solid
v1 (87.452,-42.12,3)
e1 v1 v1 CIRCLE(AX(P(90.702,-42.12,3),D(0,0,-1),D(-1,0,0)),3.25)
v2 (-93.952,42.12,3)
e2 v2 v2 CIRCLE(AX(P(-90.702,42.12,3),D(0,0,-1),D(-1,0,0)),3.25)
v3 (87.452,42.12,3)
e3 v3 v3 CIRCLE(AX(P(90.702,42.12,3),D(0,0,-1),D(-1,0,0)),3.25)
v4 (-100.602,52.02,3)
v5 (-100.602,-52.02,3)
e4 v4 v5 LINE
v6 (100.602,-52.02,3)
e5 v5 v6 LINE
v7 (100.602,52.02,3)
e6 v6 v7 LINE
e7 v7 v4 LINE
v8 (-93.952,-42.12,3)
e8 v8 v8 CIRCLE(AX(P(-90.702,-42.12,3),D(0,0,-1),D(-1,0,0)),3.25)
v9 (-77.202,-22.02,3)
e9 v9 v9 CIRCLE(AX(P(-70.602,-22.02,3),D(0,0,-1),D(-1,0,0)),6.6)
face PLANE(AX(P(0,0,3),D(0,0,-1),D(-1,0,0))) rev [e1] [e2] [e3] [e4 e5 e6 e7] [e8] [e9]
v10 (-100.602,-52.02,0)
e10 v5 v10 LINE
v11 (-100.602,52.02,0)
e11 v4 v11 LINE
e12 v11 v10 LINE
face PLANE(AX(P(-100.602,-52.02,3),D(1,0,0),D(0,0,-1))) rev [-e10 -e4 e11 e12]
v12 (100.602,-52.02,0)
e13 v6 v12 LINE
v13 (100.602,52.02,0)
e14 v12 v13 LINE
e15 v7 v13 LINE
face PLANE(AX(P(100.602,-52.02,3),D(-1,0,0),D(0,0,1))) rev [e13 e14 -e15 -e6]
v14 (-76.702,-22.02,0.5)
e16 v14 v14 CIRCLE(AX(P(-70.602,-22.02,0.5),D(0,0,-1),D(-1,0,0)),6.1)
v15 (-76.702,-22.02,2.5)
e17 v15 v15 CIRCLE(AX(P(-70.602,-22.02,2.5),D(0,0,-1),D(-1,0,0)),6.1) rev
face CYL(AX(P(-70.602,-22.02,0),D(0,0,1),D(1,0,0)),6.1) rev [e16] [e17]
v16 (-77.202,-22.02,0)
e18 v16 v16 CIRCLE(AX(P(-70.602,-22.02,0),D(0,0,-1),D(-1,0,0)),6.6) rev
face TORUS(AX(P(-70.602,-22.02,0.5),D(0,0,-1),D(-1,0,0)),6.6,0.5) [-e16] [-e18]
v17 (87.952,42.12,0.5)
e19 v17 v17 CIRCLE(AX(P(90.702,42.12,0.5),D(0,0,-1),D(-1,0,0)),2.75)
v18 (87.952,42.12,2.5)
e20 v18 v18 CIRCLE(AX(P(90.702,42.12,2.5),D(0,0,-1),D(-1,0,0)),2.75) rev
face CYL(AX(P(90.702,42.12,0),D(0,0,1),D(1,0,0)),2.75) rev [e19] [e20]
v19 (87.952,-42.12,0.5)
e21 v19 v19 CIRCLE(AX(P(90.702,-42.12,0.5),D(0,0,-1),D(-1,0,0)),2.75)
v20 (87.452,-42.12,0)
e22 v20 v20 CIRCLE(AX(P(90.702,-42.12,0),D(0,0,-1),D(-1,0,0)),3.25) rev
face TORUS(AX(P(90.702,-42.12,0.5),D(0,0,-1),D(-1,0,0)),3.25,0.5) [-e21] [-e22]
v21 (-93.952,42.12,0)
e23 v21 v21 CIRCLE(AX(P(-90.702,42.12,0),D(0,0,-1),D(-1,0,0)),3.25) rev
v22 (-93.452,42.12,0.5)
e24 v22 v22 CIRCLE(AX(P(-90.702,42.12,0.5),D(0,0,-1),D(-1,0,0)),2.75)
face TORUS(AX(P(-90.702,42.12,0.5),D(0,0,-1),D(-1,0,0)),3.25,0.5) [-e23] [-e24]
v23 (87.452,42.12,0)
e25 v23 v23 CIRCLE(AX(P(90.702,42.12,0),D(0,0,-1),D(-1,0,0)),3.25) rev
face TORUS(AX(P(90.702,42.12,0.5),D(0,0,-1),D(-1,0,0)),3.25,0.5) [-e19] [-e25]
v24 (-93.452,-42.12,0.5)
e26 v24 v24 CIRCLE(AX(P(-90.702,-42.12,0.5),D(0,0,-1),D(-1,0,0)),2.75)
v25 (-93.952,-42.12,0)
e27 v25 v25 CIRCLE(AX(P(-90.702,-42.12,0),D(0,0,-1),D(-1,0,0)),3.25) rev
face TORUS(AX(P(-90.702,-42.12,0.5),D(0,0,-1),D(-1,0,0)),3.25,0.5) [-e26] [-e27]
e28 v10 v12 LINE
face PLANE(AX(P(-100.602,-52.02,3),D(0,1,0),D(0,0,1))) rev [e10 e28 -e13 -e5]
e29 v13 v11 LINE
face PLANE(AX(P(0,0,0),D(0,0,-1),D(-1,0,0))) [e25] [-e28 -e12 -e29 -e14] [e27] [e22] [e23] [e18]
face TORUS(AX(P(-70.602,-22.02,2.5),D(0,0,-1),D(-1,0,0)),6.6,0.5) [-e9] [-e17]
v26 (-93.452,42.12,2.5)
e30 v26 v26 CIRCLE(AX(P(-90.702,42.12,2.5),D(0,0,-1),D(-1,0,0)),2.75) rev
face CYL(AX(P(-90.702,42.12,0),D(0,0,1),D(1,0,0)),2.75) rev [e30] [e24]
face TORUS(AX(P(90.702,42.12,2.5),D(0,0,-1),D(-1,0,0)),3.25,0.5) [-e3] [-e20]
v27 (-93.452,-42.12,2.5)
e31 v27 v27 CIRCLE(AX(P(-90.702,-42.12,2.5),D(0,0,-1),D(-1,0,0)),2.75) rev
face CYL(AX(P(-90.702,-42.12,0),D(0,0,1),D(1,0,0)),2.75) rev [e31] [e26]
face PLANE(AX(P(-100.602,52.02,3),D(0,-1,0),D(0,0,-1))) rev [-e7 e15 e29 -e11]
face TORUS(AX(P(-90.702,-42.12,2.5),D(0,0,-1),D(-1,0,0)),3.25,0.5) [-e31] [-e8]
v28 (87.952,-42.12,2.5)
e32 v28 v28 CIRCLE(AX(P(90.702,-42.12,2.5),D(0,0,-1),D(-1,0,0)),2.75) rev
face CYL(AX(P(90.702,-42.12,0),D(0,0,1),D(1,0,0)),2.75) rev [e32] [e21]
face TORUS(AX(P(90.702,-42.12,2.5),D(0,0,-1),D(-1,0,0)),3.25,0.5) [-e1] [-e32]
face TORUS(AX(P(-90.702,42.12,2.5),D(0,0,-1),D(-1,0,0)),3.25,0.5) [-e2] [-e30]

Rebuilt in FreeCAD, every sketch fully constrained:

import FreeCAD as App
import Part
import Sketcher
Q = App.Units.Quantity


def edges_at(feature, points):
    """Names of the edges that pass closest to the given points."""
    edges = feature.Shape.Edges
    near = lambda p: min(range(len(edges)), key=lambda i: edges[i].distToShape(Part.Vertex(*p))[0])
    return sorted({f"Edge{near(p) + 1}" for p in points})


def add_polygon(sketch, points):
    """Adds a closed chain of lines whose ends are joined by coincident constraints."""
    first, n = sketch.GeometryCount, len(points)
    for a, b in zip(points, points[1:] + points[:1]):
        sketch.addGeometry(Part.LineSegment(App.Vector(*a, 0), App.Vector(*b, 0)), False)
    for i in range(n):
        sketch.addConstraint(Sketcher.Constraint("Coincident", first + i, 2, first + (i + 1) % n, 1))

doc = App.newDocument("Part")
body = doc.addObject("PartDesign::Body", "Body")

# Sketch on XY plane
sketch1 = body.newObject("Sketcher::SketchObject", "Sketch")
sketch1.AttachmentSupport = (doc.getObject("XY_Plane"), [""])
sketch1.MapMode = "FlatFace"
add_polygon(sketch1, [(-100.602, 52.02), (-100.602, -52.02), (100.602, -52.02), (100.602, 52.02)])  # lines 0-3
sketch1.addConstraint([
    Sketcher.Constraint("Vertical", 0),
    Sketcher.Constraint("Horizontal", 1),
    Sketcher.Constraint("Vertical", 2),
    Sketcher.Constraint("Horizontal", 3),
    Sketcher.Constraint("Symmetric", 0, 2, 2, 2, -1, 1),
    Sketcher.Constraint("DistanceY", 0, 2, 0, 1, Q("104.04 mm")),
    Sketcher.Constraint("DistanceX", 1, 1, 1, 2, Q("201.204 mm")),
])
pad1 = body.newObject("PartDesign::Pad", "Pad")
pad1.Profile = sketch1
pad1.Length = 3

# Sketch on XY plane
sketch2 = body.newObject("Sketcher::SketchObject", "Sketch001")
sketch2.AttachmentSupport = (doc.getObject("XY_Plane"), [""])
sketch2.MapMode = "FlatFace"
sketch2.AttachmentOffset = App.Placement(App.Vector(0, 0, 3), App.Rotation())
sketch2.addGeometry([
    Part.Circle(App.Vector(-90.702, 42.12, 0), App.Vector(0, 0, 1), 2.75),
    Part.Circle(App.Vector(90.702, 42.12, 0), App.Vector(0, 0, 1), 2.75),
    Part.Circle(App.Vector(90.702, -42.12, 0), App.Vector(0, 0, 1), 2.75),
    Part.Circle(App.Vector(-90.702, -42.12, 0), App.Vector(0, 0, 1), 2.75),
], False)
sketch2.addConstraint([
    Sketcher.Constraint("Equal", 0, 1),
    Sketcher.Constraint("Equal", 1, 2),
    Sketcher.Constraint("Equal", 2, 3),
    Sketcher.Constraint("Symmetric", 0, 3, 2, 3, -1, 1),
    Sketcher.Constraint("Symmetric", 1, 3, 3, 3, -1, 1),
    Sketcher.Constraint("Symmetric", 0, 3, 1, 3, -2),
    Sketcher.Constraint("Diameter", 0, Q("5.5 mm")),
    Sketcher.Constraint("DistanceY", -1, 1, 0, 3, Q("42.12 mm")),
    Sketcher.Constraint("DistanceX", 0, 3, -1, 1, Q("90.702 mm")),
])
pocket1 = body.newObject("PartDesign::Pocket", "Pocket")
pocket1.Profile = sketch2
pocket1.Type = "ThroughAll"
doc.recompute()

fillet = body.newObject("PartDesign::Fillet", "Fillet")
fillet.Base = (pocket1, edges_at(pocket1, [
    (-93.452, -42.12, 0),
    (-93.452, -42.12, 3),
    (87.952, -42.12, 0),
    (87.952, -42.12, 3),
    (87.952, 42.12, 0),
    (87.952, 42.12, 3),
    (-93.452, 42.12, 0),
    (-93.452, 42.12, 3),
]))
fillet.Radius = 0.5

# Sketch on XY plane
sketch3 = body.newObject("Sketcher::SketchObject", "Sketch002")
sketch3.AttachmentSupport = (doc.getObject("XY_Plane"), [""])
sketch3.MapMode = "FlatFace"
sketch3.AttachmentOffset = App.Placement(App.Vector(0, 0, 3), App.Rotation())
sketch3.addGeometry(Part.Circle(App.Vector(-70.602, -22.02, 0), App.Vector(0, 0, 1), 6.1), False)
sketch3.addConstraint([
    Sketcher.Constraint("Diameter", 0, Q("12.2 mm")),
    Sketcher.Constraint("DistanceY", 0, 3, -1, 1, Q("22.02 mm")),
    Sketcher.Constraint("DistanceX", 0, 3, -1, 1, Q("70.602 mm")),
])
pocket2 = body.newObject("PartDesign::Pocket", "Pocket001")
pocket2.Profile = sketch3
pocket2.Type = "ThroughAll"
doc.recompute()

fillet2 = body.newObject("PartDesign::Fillet", "Fillet001")
fillet2.Base = (pocket2, edges_at(pocket2, [(-76.702, -22.02, 0), (-76.702, -22.02, 3)]))
fillet2.Radius = 0.5

doc.recompute()
